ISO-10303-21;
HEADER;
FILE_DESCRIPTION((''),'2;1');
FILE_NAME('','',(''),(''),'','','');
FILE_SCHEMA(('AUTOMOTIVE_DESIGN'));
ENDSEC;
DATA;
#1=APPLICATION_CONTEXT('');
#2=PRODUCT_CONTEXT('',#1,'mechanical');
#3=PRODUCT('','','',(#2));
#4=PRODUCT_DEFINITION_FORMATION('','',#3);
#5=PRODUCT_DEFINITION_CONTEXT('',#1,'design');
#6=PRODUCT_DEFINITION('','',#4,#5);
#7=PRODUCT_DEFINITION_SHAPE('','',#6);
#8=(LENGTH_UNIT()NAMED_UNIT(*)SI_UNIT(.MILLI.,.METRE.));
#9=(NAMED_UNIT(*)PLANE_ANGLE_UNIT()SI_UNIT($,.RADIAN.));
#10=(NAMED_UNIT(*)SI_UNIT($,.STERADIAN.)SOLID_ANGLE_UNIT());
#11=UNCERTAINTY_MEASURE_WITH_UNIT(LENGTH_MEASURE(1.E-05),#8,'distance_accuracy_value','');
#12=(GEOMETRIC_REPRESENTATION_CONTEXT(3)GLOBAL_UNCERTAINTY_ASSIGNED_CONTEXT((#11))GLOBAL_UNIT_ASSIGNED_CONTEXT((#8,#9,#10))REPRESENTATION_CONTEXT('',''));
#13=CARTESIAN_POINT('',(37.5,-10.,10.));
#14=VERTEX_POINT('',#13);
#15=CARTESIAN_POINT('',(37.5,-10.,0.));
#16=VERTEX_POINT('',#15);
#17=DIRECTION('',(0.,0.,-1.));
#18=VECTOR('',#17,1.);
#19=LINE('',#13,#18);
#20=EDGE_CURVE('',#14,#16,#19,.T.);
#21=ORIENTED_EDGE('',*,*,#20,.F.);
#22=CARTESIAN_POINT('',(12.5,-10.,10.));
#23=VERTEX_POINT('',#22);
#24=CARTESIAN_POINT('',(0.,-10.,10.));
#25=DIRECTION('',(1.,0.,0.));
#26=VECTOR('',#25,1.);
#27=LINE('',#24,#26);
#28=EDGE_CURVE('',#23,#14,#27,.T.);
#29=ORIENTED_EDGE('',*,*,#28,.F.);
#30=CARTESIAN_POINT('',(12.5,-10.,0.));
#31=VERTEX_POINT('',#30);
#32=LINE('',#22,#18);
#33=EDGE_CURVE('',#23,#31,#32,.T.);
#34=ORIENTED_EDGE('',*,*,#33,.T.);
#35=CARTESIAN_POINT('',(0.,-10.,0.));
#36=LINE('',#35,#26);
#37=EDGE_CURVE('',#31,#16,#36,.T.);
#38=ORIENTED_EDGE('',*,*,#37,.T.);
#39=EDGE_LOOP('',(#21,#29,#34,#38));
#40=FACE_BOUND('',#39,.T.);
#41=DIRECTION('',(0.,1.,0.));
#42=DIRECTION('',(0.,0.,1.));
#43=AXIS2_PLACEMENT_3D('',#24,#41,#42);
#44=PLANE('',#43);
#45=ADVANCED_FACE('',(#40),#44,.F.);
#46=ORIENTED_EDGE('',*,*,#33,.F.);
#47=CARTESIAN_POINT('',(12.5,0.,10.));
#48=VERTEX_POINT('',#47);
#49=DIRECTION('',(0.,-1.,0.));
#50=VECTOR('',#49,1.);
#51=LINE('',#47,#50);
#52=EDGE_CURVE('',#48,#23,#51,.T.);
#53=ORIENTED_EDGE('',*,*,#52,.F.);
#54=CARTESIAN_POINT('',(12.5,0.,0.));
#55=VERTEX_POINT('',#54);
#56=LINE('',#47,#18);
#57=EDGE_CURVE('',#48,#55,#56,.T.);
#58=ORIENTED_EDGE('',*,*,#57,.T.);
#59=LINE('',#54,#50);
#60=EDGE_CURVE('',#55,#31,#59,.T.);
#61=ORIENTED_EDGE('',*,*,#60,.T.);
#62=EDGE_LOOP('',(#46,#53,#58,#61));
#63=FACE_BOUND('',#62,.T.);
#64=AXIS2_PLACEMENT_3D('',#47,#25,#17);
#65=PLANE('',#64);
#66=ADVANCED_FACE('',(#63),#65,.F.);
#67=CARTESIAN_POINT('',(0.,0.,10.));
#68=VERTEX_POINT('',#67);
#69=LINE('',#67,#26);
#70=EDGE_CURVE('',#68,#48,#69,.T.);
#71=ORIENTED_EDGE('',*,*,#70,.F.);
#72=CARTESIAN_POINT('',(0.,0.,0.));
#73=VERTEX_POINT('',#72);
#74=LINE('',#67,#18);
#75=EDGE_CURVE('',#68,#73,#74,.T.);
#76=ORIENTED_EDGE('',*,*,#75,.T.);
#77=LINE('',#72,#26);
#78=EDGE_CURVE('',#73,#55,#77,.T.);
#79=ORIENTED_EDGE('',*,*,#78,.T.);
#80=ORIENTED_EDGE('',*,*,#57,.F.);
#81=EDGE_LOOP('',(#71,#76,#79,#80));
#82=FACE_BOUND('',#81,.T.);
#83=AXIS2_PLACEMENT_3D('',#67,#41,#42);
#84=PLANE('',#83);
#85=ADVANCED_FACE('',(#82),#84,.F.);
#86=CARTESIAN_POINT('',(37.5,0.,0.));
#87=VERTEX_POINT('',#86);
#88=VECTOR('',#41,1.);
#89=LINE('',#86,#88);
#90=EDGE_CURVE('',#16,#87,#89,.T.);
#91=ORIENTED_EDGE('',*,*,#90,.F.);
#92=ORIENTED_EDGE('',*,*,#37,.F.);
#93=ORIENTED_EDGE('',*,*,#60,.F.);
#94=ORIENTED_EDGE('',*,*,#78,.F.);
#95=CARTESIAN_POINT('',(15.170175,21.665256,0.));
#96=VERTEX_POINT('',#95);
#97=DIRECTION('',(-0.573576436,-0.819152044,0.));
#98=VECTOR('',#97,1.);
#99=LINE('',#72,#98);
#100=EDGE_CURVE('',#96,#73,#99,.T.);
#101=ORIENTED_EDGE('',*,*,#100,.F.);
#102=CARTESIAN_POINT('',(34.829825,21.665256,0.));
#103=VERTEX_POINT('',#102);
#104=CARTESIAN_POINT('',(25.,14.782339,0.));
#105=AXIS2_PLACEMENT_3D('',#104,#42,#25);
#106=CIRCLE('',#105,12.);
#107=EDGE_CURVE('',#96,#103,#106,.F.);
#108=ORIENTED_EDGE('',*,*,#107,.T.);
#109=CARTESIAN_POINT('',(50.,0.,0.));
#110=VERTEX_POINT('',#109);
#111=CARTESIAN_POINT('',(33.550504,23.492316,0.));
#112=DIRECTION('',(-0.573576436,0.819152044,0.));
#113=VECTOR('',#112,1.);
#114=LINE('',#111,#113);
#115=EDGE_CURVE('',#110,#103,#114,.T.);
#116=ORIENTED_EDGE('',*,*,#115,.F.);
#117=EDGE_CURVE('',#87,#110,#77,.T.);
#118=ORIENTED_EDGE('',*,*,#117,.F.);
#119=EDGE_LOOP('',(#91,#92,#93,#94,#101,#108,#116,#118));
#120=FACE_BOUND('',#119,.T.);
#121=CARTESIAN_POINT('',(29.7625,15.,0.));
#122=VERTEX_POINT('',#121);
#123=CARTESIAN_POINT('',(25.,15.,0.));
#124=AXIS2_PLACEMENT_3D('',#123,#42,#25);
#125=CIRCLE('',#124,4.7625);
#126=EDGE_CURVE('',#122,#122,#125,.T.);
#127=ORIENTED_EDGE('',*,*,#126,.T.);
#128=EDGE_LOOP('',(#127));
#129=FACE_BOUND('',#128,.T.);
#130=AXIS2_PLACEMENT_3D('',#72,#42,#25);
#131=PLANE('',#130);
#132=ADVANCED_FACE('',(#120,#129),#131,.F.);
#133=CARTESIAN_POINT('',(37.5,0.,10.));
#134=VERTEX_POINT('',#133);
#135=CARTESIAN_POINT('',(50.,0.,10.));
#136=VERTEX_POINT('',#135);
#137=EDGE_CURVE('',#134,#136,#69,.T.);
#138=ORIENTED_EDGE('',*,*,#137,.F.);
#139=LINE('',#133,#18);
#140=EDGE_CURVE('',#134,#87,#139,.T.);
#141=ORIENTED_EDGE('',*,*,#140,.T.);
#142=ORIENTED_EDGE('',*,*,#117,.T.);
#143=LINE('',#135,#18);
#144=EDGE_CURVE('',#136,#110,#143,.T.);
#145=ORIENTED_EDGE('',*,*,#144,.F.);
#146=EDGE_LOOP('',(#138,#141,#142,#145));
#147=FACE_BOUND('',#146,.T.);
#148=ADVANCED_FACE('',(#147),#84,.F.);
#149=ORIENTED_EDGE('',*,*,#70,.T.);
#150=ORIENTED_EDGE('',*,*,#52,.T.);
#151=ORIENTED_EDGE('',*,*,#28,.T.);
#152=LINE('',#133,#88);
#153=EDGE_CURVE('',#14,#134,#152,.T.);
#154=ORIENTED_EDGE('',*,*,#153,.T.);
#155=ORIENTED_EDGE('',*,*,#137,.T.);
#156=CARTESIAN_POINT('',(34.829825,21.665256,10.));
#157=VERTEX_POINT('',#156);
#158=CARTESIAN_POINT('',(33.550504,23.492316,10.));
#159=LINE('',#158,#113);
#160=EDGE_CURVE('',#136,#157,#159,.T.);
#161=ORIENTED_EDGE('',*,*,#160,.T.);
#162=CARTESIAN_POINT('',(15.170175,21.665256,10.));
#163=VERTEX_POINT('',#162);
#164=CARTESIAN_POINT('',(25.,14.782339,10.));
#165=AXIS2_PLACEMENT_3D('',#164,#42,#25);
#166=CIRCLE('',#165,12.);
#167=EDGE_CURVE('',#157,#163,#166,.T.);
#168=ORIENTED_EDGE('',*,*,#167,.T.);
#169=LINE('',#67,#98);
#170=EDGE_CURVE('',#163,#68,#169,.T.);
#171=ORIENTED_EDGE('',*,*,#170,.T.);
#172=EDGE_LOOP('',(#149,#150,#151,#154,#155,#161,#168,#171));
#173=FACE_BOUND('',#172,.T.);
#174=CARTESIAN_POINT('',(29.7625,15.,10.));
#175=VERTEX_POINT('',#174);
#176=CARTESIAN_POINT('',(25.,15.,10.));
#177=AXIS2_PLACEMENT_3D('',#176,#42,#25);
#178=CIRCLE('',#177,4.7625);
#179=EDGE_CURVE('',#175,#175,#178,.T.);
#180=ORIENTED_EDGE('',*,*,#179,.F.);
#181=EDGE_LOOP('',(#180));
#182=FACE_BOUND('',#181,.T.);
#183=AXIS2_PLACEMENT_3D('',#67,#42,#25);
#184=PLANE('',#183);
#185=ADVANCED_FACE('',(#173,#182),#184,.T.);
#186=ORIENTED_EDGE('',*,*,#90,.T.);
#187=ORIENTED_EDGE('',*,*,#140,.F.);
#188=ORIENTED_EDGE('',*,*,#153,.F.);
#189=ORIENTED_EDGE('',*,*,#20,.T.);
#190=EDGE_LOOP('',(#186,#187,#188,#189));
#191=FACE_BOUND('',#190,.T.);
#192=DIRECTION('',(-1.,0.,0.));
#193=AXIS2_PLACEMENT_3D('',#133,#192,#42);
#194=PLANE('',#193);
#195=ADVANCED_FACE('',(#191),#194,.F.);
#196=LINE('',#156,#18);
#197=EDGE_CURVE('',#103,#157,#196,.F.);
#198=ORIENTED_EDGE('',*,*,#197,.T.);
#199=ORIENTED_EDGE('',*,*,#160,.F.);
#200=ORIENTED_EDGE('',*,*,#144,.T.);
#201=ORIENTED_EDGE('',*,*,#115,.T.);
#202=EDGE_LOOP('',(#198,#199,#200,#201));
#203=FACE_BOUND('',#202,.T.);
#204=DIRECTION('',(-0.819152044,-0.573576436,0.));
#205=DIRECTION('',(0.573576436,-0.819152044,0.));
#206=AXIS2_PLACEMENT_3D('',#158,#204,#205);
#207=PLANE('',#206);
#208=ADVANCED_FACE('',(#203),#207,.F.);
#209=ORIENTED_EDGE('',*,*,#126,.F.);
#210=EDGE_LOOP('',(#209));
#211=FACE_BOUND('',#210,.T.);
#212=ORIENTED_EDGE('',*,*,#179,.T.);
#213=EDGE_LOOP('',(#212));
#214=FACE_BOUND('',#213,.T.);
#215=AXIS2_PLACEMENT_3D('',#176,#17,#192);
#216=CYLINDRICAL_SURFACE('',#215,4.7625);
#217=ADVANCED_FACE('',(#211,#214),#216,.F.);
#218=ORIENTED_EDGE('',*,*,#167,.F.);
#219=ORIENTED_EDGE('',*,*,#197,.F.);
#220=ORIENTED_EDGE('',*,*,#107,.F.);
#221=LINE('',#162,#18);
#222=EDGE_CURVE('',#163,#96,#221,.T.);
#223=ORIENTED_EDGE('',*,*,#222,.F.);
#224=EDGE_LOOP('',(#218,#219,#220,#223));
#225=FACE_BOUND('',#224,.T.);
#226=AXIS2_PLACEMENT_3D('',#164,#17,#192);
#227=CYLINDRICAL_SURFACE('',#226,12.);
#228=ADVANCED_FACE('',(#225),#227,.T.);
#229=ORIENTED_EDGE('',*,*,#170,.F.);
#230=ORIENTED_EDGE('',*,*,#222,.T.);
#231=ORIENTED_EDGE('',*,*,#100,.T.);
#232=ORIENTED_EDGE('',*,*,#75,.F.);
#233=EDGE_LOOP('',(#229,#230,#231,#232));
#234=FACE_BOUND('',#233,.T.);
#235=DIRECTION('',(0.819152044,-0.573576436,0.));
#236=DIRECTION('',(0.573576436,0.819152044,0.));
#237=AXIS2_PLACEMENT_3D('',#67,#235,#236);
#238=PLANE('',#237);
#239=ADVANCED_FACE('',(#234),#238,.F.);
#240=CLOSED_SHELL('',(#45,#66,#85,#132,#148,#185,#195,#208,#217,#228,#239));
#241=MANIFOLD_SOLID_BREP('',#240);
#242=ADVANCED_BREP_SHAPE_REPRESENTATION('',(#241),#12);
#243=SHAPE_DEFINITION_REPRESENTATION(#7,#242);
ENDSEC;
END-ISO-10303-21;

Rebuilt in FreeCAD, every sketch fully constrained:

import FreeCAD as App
import Part
import Sketcher
Q = App.Units.Quantity


def edges_at(feature, points):
    """Names of the edges that pass closest to the given points."""
    edges = feature.Shape.Edges
    near = lambda p: min(range(len(edges)), key=lambda i: edges[i].distToShape(Part.Vertex(*p))[0])
    return sorted({f"Edge{near(p) + 1}" for p in points})

doc = App.newDocument("Part")
params = doc.addObject("Spreadsheet::Sheet", "Params")
for row, (alias, value) in enumerate([
    ("sketch1_width", "25 mm"),
    ("sketch1_height", "10 mm"),
    ("sketch1_width2", "12.5 mm"),
    ("pad1_length", "10 mm"),
    ("fillet_radius", "12 mm"),
], start=1):
    params.set(f"A{row}", alias)
    params.set(f"B{row}", "=" + value)
    params.setAlias(f"B{row}", alias)

body = doc.addObject("PartDesign::Body", "Body")

# Sketch on XY plane
sketch1 = body.newObject("Sketcher::SketchObject", "Sketch")
sketch1.AttachmentSupport = (doc.getObject("XY_Plane"), [""])
sketch1.MapMode = "FlatFace"
sketch1.addGeometry([
    Part.LineSegment(App.Vector(50, 0, 0), App.Vector(25, 35.7, 0)),  # 0
    Part.LineSegment(App.Vector(25, 35.7, 0), App.Vector(0, 0, 0)),  # 1
    Part.LineSegment(App.Vector(0, 0, 0), App.Vector(12.5, 0, 0)),  # 2
    Part.LineSegment(App.Vector(12.5, 0, 0), App.Vector(12.5, -10, 0)),  # 3
    Part.LineSegment(App.Vector(12.5, -10, 0), App.Vector(37.5, -10, 0)),  # 4
    Part.LineSegment(App.Vector(37.5, -10, 0), App.Vector(37.5, 0, 0)),  # 5
    Part.LineSegment(App.Vector(37.5, 0, 0), App.Vector(50, 0, 0)),  # 6
    Part.Circle(App.Vector(25, 15, 0), App.Vector(0, 0, 1), 4.8),  # 7
], False)
sketch1.addConstraint([
    Sketcher.Constraint("Coincident", 0, 2, 1, 1),
    Sketcher.Constraint("Coincident", 1, 2, 2, 1),
    Sketcher.Constraint("Coincident", 2, 2, 3, 1),
    Sketcher.Constraint("Coincident", 3, 2, 4, 1),
    Sketcher.Constraint("Coincident", 4, 2, 5, 1),
    Sketcher.Constraint("Coincident", 5, 2, 6, 1),
    Sketcher.Constraint("Coincident", 6, 2, 0, 1),
    Sketcher.Constraint("Horizontal", 2),
    Sketcher.Constraint("Vertical", 3),
    Sketcher.Constraint("Horizontal", 4),
    Sketcher.Constraint("Vertical", 5),
    Sketcher.Constraint("Horizontal", 6),
    Sketcher.Constraint("Coincident", 1, 2, -1, 1),
    Sketcher.Constraint("PointOnObject", 5, 2, -1),
    Sketcher.Constraint("Vertical", 7, 3, 0, 2),
    Sketcher.Constraint("Equal", 2, 6),
    Sketcher.Constraint("Equal", 0, 1),
    Sketcher.Constraint("DistanceX", 4, 1, 4, 2, Q("25 mm")),
    Sketcher.Constraint("DistanceY", 3, 2, 3, 1, Q("10 mm")),
    Sketcher.Constraint("Angle", 0, Q("125 deg")),
    Sketcher.Constraint("Diameter", 7, Q("9.525 mm")),
    Sketcher.Constraint("DistanceX", 2, 1, 2, 2, Q("12.5 mm")),
    Sketcher.Constraint("DistanceY", -1, 1, 7, 3, Q("15 mm")),
])
sketch1.setExpression("Constraints[17]", "Params.sketch1_width")
sketch1.setExpression("Constraints[18]", "Params.sketch1_height")
sketch1.setExpression("Constraints[21]", "Params.sketch1_width2")
pad1 = body.newObject("PartDesign::Pad", "Pad")
pad1.Profile = sketch1
pad1.setExpression("Length", "Params.pad1_length")
doc.recompute()

fillet = body.newObject("PartDesign::Fillet", "Fillet")
fillet.Base = (pad1, edges_at(pad1, [(25, 35.704, 5)]))
fillet.setExpression("Radius", "Params.fillet_radius")

doc.recompute()
